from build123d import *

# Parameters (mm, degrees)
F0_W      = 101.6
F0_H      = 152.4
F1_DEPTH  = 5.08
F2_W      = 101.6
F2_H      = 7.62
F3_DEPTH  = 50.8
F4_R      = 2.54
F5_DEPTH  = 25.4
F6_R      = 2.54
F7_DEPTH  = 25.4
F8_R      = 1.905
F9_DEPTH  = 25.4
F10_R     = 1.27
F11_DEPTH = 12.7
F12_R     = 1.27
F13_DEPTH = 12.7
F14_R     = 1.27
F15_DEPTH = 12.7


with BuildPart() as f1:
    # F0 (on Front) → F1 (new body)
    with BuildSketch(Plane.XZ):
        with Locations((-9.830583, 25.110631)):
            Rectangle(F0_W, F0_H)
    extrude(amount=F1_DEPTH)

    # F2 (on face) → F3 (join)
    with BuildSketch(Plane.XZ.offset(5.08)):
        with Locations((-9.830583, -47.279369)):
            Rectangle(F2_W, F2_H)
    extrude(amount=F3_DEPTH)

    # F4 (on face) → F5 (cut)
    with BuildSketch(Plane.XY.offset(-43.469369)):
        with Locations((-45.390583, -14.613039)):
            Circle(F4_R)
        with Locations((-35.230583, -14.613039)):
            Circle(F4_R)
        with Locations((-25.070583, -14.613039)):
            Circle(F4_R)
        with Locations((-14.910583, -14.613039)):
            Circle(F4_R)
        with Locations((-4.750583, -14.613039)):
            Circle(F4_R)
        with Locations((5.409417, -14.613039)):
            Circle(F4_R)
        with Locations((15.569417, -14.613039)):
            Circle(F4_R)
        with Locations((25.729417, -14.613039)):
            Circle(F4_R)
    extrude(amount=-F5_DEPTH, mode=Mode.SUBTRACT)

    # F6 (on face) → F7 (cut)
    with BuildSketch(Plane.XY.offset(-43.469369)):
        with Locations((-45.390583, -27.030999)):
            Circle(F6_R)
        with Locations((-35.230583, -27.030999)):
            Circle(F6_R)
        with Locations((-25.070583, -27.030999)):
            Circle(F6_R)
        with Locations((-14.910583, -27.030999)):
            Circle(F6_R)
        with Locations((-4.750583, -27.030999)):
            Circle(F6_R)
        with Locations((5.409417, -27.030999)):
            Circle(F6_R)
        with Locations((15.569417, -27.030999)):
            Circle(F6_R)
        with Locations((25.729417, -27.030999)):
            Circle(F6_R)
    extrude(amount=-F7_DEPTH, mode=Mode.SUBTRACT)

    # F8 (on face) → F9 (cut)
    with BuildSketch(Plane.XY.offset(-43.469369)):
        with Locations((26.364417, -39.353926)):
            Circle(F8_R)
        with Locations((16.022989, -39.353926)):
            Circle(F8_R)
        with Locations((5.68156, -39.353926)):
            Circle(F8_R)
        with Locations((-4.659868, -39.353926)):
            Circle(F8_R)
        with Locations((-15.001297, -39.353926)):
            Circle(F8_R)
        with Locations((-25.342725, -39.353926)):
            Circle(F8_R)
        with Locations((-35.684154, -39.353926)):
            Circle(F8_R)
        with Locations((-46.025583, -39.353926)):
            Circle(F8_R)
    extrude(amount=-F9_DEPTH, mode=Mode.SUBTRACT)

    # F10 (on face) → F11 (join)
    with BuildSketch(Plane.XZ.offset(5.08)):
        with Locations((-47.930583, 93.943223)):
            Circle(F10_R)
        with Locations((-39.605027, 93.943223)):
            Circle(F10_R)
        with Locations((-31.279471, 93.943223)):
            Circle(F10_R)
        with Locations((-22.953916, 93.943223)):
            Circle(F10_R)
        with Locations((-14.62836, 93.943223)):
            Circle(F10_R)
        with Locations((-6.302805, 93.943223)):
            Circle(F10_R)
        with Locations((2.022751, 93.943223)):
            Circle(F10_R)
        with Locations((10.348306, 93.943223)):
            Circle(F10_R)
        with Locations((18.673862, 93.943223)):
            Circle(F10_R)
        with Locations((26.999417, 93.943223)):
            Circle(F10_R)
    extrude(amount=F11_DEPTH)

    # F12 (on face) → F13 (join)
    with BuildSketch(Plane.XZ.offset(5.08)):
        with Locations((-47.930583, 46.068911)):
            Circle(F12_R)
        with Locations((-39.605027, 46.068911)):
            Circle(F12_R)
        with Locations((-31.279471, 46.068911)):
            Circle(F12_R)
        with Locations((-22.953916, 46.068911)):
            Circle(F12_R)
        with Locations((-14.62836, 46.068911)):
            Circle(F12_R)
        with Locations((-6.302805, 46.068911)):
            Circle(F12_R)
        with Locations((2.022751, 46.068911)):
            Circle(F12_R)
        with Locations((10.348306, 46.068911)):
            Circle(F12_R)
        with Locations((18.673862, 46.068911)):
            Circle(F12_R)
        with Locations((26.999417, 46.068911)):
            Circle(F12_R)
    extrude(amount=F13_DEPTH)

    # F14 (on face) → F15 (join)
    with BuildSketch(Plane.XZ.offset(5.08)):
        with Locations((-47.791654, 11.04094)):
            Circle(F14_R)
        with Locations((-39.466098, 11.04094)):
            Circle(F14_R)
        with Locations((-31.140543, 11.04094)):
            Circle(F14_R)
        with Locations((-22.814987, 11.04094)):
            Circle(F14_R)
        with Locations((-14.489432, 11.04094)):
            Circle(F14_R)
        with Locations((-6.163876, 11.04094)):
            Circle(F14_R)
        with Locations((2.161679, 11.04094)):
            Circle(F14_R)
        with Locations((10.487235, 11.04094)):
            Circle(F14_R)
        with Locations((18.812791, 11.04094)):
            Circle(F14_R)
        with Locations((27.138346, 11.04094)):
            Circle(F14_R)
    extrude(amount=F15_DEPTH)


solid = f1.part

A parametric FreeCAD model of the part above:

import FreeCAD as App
import Part
import Sketcher
Q = App.Units.Quantity


def add_polygon(sketch, points):
    """Adds a closed chain of lines whose ends are joined by coincident constraints."""
    first, n = sketch.GeometryCount, len(points)
    for a, b in zip(points, points[1:] + points[:1]):
        sketch.addGeometry(Part.LineSegment(App.Vector(*a, 0), App.Vector(*b, 0)), False)
    for i in range(n):
        sketch.addConstraint(Sketcher.Constraint("Coincident", first + i, 2, first + (i + 1) % n, 1))

doc = App.newDocument("Part")
body = doc.addObject("PartDesign::Body", "Body")

# Sketch on XZ plane
sketch1 = body.newObject("Sketcher::SketchObject", "Sketch")
sketch1.AttachmentSupport = (doc.getObject("XZ_Plane"), [""])
sketch1.MapMode = "FlatFace"
add_polygon(sketch1, [(-61, 101), (-61, -51), (41, -51), (41, 101)])  # lines 0-3
sketch1.addConstraint([
    Sketcher.Constraint("Vertical", 0),
    Sketcher.Constraint("Horizontal", 1),
    Sketcher.Constraint("Vertical", 2),
    Sketcher.Constraint("Horizontal", 3),
    Sketcher.Constraint("DistanceX", 1, 1, 1, 2, Q("4 in")),
    Sketcher.Constraint("DistanceY", 0, 2, 0, 1, Q("6 in")),
    Sketcher.Constraint("DistanceY", 0, 2, -1, 1, 51.089369),
    Sketcher.Constraint("DistanceX", 0, 2, -1, 1, 60.630583),
])
pad1 = body.newObject("PartDesign::Pad", "Pad")
pad1.Profile = sketch1
pad1.Length = Q("0.2 in")

# Sketch on XZ plane
sketch2 = body.newObject("Sketcher::SketchObject", "Sketch001")
sketch2.AttachmentSupport = (doc.getObject("XZ_Plane"), [""])
sketch2.MapMode = "FlatFace"
sketch2.AttachmentOffset = App.Placement(App.Vector(0, 0, 0.2 * 25.4), App.Rotation())
add_polygon(sketch2, [(-61, -43), (-61, -51), (41, -51), (41, -43)])  # lines 0-3
sketch2.addConstraint([
    Sketcher.Constraint("Vertical", 0),
    Sketcher.Constraint("Horizontal", 1),
    Sketcher.Constraint("Vertical", 2),
    Sketcher.Constraint("Horizontal", 3),
    Sketcher.Constraint("DistanceX", 1, 1, 1, 2, Q("4 in")),
    Sketcher.Constraint("DistanceY", 0, 2, 0, 1, Q("0.3 in")),
    Sketcher.Constraint("DistanceY", 0, 2, -1, 1, 51.089369),
    Sketcher.Constraint("DistanceX", 0, 2, -1, 1, 60.630583),
])
pad2 = body.newObject("PartDesign::Pad", "Pad001")
pad2.Profile = sketch2
pad2.Length = Q("2 in")

# Sketch on XY plane
sketch3 = body.newObject("Sketcher::SketchObject", "Sketch002")
sketch3.AttachmentSupport = (doc.getObject("XY_Plane"), [""])
sketch3.MapMode = "FlatFace"
sketch3.AttachmentOffset = App.Placement(App.Vector(0, 0, -43.469369), App.Rotation())
sketch3.addGeometry([
    Part.Circle(App.Vector(-45.4, -14.6, 0), App.Vector(0, 0, 1), 2.5),  # 0
    Part.Circle(App.Vector(-35.2, -14.6, 0), App.Vector(0, 0, 1), 2.5),  # 1
    Part.Circle(App.Vector(-25.1, -14.6, 0), App.Vector(0, 0, 1), 2.5),  # 2
    Part.Circle(App.Vector(-14.9, -14.6, 0), App.Vector(0, 0, 1), 2.5),  # 3
    Part.Circle(App.Vector(-4.8, -14.6, 0), App.Vector(0, 0, 1), 2.5),  # 4
    Part.Circle(App.Vector(5.4, -14.6, 0), App.Vector(0, 0, 1), 2.5),  # 5
    Part.Circle(App.Vector(15.6, -14.6, 0), App.Vector(0, 0, 1), 2.5),  # 6
    Part.Circle(App.Vector(25.7, -14.6, 0), App.Vector(0, 0, 1), 2.5),  # 7
], False)
sketch3.addConstraint([
    Sketcher.Constraint("Equal", 0, 1),
    Sketcher.Constraint("Equal", 1, 2),
    Sketcher.Constraint("Equal", 2, 3),
    Sketcher.Constraint("Equal", 3, 4),
    Sketcher.Constraint("Equal", 4, 5),
    Sketcher.Constraint("Equal", 5, 6),
    Sketcher.Constraint("Equal", 6, 7),
    Sketcher.Constraint("Horizontal", 0, 3, 1, 3),
    Sketcher.Constraint("Horizontal", 1, 3, 2, 3),
    Sketcher.Constraint("Horizontal", 2, 3, 3, 3),
    Sketcher.Constraint("Horizontal", 3, 3, 4, 3),
    Sketcher.Constraint("Horizontal", 4, 3, 5, 3),
    Sketcher.Constraint("Horizontal", 5, 3, 6, 3),
    Sketcher.Constraint("Horizontal", 6, 3, 7, 3),
    Sketcher.Constraint("Diameter", 0, Q("0.2 in")),
    Sketcher.Constraint("DistanceX", 0, 3, 5, 3, Q("2 in")),
    Sketcher.Constraint("DistanceX", 1, 3, 6, 3, Q("2 in")),
    Sketcher.Constraint("DistanceX", 2, 3, 7, 3, Q("2 in")),
    Sketcher.Constraint("DistanceX", 0, 3, 1, 3, Q("0.4 in")),
    Sketcher.Constraint("DistanceX", 1, 3, 2, 3, Q("0.4 in")),
    Sketcher.Constraint("DistanceX", 2, 3, 3, 3, Q("0.4 in")),
    Sketcher.Constraint("DistanceX", 3, 3, 4, 3, Q("0.4 in")),
    Sketcher.Constraint("DistanceY", 0, 3, -1, 1, 14.613039),
    Sketcher.Constraint("DistanceX", 0, 3, -1, 1, 45.390583),
])
pocket1 = body.newObject("PartDesign::Pocket", "Pocket")
pocket1.Profile = sketch3
pocket1.Length = Q("1 in")

# Sketch on XY plane
sketch4 = body.newObject("Sketcher::SketchObject", "Sketch003")
sketch4.AttachmentSupport = (doc.getObject("XY_Plane"), [""])
sketch4.MapMode = "FlatFace"
sketch4.AttachmentOffset = App.Placement(App.Vector(0, 0, -43.469369), App.Rotation())
sketch4.addGeometry([
    Part.Circle(App.Vector(-45.4, -27, 0), App.Vector(0, 0, 1), 2.5),  # 0
    Part.Circle(App.Vector(-35.2, -27, 0), App.Vector(0, 0, 1), 2.5),  # 1
    Part.Circle(App.Vector(-25.1, -27, 0), App.Vector(0, 0, 1), 2.5),  # 2
    Part.Circle(App.Vector(-14.9, -27, 0), App.Vector(0, 0, 1), 2.5),  # 3
    Part.Circle(App.Vector(-4.8, -27, 0), App.Vector(0, 0, 1), 2.5),  # 4
    Part.Circle(App.Vector(5.4, -27, 0), App.Vector(0, 0, 1), 2.5),  # 5
    Part.Circle(App.Vector(15.6, -27, 0), App.Vector(0, 0, 1), 2.5),  # 6
    Part.Circle(App.Vector(25.7, -27, 0), App.Vector(0, 0, 1), 2.5),  # 7
], False)
sketch4.addConstraint([
    Sketcher.Constraint("Equal", 0, 1),
    Sketcher.Constraint("Equal", 1, 2),
    Sketcher.Constraint("Equal", 2, 3),
    Sketcher.Constraint("Equal", 3, 4),
    Sketcher.Constraint("Equal", 4, 5),
    Sketcher.Constraint("Equal", 5, 6),
    Sketcher.Constraint("Equal", 6, 7),
    Sketcher.Constraint("Horizontal", 0, 3, 1, 3),
    Sketcher.Constraint("Horizontal", 1, 3, 2, 3),
    Sketcher.Constraint("Horizontal", 2, 3, 3, 3),
    Sketcher.Constraint("Horizontal", 3, 3, 4, 3),
    Sketcher.Constraint("Horizontal", 4, 3, 5, 3),
    Sketcher.Constraint("Horizontal", 5, 3, 6, 3),
    Sketcher.Constraint("Horizontal", 6, 3, 7, 3),
    Sketcher.Constraint("Diameter", 0, Q("0.2 in")),
    Sketcher.Constraint("DistanceX", 0, 3, 5, 3, Q("2 in")),
    Sketcher.Constraint("DistanceX", 1, 3, 6, 3, Q("2 in")),
    Sketcher.Constraint("DistanceX", 2, 3, 7, 3, Q("2 in")),
    Sketcher.Constraint("DistanceX", 0, 3, 1, 3, Q("0.4 in")),
    Sketcher.Constraint("DistanceX", 1, 3, 2, 3, Q("0.4 in")),
    Sketcher.Constraint("DistanceX", 2, 3, 3, 3, Q("0.4 in")),
    Sketcher.Constraint("DistanceX", 3, 3, 4, 3, Q("0.4 in")),
    Sketcher.Constraint("DistanceY", 0, 3, -1, 1, 27.030999),
    Sketcher.Constraint("DistanceX", 0, 3, -1, 1, 45.390583),
])
pocket2 = body.newObject("PartDesign::Pocket", "Pocket001")
pocket2.Profile = sketch4
pocket2.Length = Q("1 in")

# Sketch on XY plane
sketch5 = body.newObject("Sketcher::SketchObject", "Sketch004")
sketch5.AttachmentSupport = (doc.getObject("XY_Plane"), [""])
sketch5.MapMode = "FlatFace"
sketch5.AttachmentOffset = App.Placement(App.Vector(0, 0, -43.469369), App.Rotation())
sketch5.addGeometry([
    Part.Circle(App.Vector(26.4, -39.4, 0), App.Vector(0, 0, 1), 1.9),  # 0
    Part.Circle(App.Vector(16, -39.4, 0), App.Vector(0, 0, 1), 1.9),  # 1
    Part.Circle(App.Vector(5.7, -39.4, 0), App.Vector(0, 0, 1), 1.9),  # 2
    Part.Circle(App.Vector(-4.7, -39.4, 0), App.Vector(0, 0, 1), 1.9),  # 3
    Part.Circle(App.Vector(-15, -39.4, 0), App.Vector(0, 0, 1), 1.9),  # 4
    Part.Circle(App.Vector(-25.3, -39.4, 0), App.Vector(0, 0, 1), 1.9),  # 5
    Part.Circle(App.Vector(-35.7, -39.4, 0), App.Vector(0, 0, 1), 1.9),  # 6
    Part.Circle(App.Vector(-46, -39.4, 0), App.Vector(0, 0, 1), 1.9),  # 7
], False)
sketch5.addConstraint([
    Sketcher.Constraint("Equal", 0, 1),
    Sketcher.Constraint("Equal", 1, 2),
    Sketcher.Constraint("Equal", 2, 3),
    Sketcher.Constraint("Equal", 3, 4),
    Sketcher.Constraint("Equal", 4, 5),
    Sketcher.Constraint("Equal", 5, 6),
    Sketcher.Constraint("Equal", 6, 7),
    Sketcher.Constraint("Horizontal", 0, 3, 1, 3),
    Sketcher.Constraint("Horizontal", 1, 3, 2, 3),
    Sketcher.Constraint("Horizontal", 2, 3, 3, 3),
    Sketcher.Constraint("Horizontal", 3, 3, 4, 3),
    Sketcher.Constraint("Horizontal", 4, 3, 5, 3),
    Sketcher.Constraint("Horizontal", 5, 3, 6, 3),
    Sketcher.Constraint("Horizontal", 6, 3, 7, 3),
    Sketcher.Constraint("Diameter", 0, Q("0.15 in")),
    Sketcher.Constraint("DistanceX", -1, 1, 1, 3, 16.022989),
    Sketcher.Constraint("DistanceX", -1, 1, 2, 3, 5.68156),
    Sketcher.Constraint("DistanceX", 3, 3, -1, 1, 4.659868),
    Sketcher.Constraint("DistanceX", 4, 3, 3, 3, 10.341429),
    Sketcher.Constraint("DistanceX", 5, 3, 4, 3, 10.341428),
    Sketcher.Constraint("DistanceX", 6, 3, 5, 3, 10.341429),
    Sketcher.Constraint("DistanceX", 7, 3, 6, 3, 10.341429),
    Sketcher.Constraint("DistanceX", -1, 1, 0, 3, 26.364417),
    Sketcher.Constraint("DistanceY", 0, 3, -1, 1, 39.353926),
])
pocket3 = body.newObject("PartDesign::Pocket", "Pocket002")
pocket3.Profile = sketch5
pocket3.Length = Q("1 in")

# Sketch on XZ plane
sketch6 = body.newObject("Sketcher::SketchObject", "Sketch005")
sketch6.AttachmentSupport = (doc.getObject("XZ_Plane"), [""])
sketch6.MapMode = "FlatFace"
sketch6.AttachmentOffset = App.Placement(App.Vector(0, 0, 0.2 * 25.4), App.Rotation())
sketch6.addGeometry([
    Part.Circle(App.Vector(-47.9, 93.9, 0), App.Vector(0, 0, 1), 1.3),  # 0
    Part.Circle(App.Vector(-39.6, 93.9, 0), App.Vector(0, 0, 1), 1.3),  # 1
    Part.Circle(App.Vector(-31.3, 93.9, 0), App.Vector(0, 0, 1), 1.3),  # 2
    Part.Circle(App.Vector(-23, 93.9, 0), App.Vector(0, 0, 1), 1.3),  # 3
    Part.Circle(App.Vector(-14.6, 93.9, 0), App.Vector(0, 0, 1), 1.3),  # 4
    Part.Circle(App.Vector(-6.3, 93.9, 0), App.Vector(0, 0, 1), 1.3),  # 5
    Part.Circle(App.Vector(2, 93.9, 0), App.Vector(0, 0, 1), 1.3),  # 6
    Part.Circle(App.Vector(10.3, 93.9, 0), App.Vector(0, 0, 1), 1.3),  # 7
    Part.Circle(App.Vector(18.7, 93.9, 0), App.Vector(0, 0, 1), 1.3),  # 8
    Part.Circle(App.Vector(27, 93.9, 0), App.Vector(0, 0, 1), 1.3),  # 9
], False)
sketch6.addConstraint([
    Sketcher.Constraint("Equal", 0, 1),
    Sketcher.Constraint("Equal", 1, 2),
    Sketcher.Constraint("Equal", 2, 3),
    Sketcher.Constraint("Equal", 3, 4),
    Sketcher.Constraint("Equal", 4, 5),
    Sketcher.Constraint("Equal", 5, 6),
    Sketcher.Constraint("Equal", 6, 7),
    Sketcher.Constraint("Equal", 7, 8),
    Sketcher.Constraint("Equal", 8, 9),
    Sketcher.Constraint("Horizontal", 0, 3, 1, 3),
    Sketcher.Constraint("Horizontal", 1, 3, 2, 3),
    Sketcher.Constraint("Horizontal", 2, 3, 3, 3),
    Sketcher.Constraint("Horizontal", 3, 3, 4, 3),
    Sketcher.Constraint("Horizontal", 4, 3, 5, 3),
    Sketcher.Constraint("Horizontal", 5, 3, 6, 3),
    Sketcher.Constraint("Horizontal", 6, 3, 7, 3),
    Sketcher.Constraint("Horizontal", 7, 3, 8, 3),
    Sketcher.Constraint("Horizontal", 8, 3, 9, 3),
    Sketcher.Constraint("Diameter", 0, Q("0.1 in")),
    Sketcher.Constraint("DistanceX", 2, 3, -1, 1, 31.279471),
    Sketcher.Constraint("DistanceX", 4, 3, -1, 1, 14.62836),
    Sketcher.Constraint("DistanceX", -1, 1, 6, 3, 2.022751),
    Sketcher.Constraint("DistanceX", -1, 1, 8, 3, 18.673862),
    Sketcher.Constraint("DistanceX", 0, 3, 2, 3, 16.651112),
    Sketcher.Constraint("DistanceX", 1, 3, 3, 3, 16.651111),
    Sketcher.Constraint("DistanceX", 3, 3, 5, 3, 16.651111),
    Sketcher.Constraint("DistanceX", 5, 3, 7, 3, 16.651111),
    Sketcher.Constraint("DistanceX", 7, 3, 9, 3, 16.651111),
    Sketcher.Constraint("DistanceY", -1, 1, 0, 3, 93.943223),
    Sketcher.Constraint("DistanceX", 1, 3, -1, 1, 39.605027),
])
pad3 = body.newObject("PartDesign::Pad", "Pad002")
pad3.Profile = sketch6
pad3.Length = Q("0.5 in")

# Sketch on XZ plane
sketch7 = body.newObject("Sketcher::SketchObject", "Sketch006")
sketch7.AttachmentSupport = (doc.getObject("XZ_Plane"), [""])
sketch7.MapMode = "FlatFace"
sketch7.AttachmentOffset = App.Placement(App.Vector(0, 0, 0.2 * 25.4), App.Rotation())
sketch7.addGeometry([
    Part.Circle(App.Vector(-47.9, 46.1, 0), App.Vector(0, 0, 1), 1.3),  # 0
    Part.Circle(App.Vector(-39.6, 46.1, 0), App.Vector(0, 0, 1), 1.3),  # 1
    Part.Circle(App.Vector(-31.3, 46.1, 0), App.Vector(0, 0, 1), 1.3),  # 2
    Part.Circle(App.Vector(-23, 46.1, 0), App.Vector(0, 0, 1), 1.3),  # 3
    Part.Circle(App.Vector(-14.6, 46.1, 0), App.Vector(0, 0, 1), 1.3),  # 4
    Part.Circle(App.Vector(-6.3, 46.1, 0), App.Vector(0, 0, 1), 1.3),  # 5
    Part.Circle(App.Vector(2, 46.1, 0), App.Vector(0, 0, 1), 1.3),  # 6
    Part.Circle(App.Vector(10.3, 46.1, 0), App.Vector(0, 0, 1), 1.3),  # 7
    Part.Circle(App.Vector(18.7, 46.1, 0), App.Vector(0, 0, 1), 1.3),  # 8
    Part.Circle(App.Vector(27, 46.1, 0), App.Vector(0, 0, 1), 1.3),  # 9
], False)
sketch7.addConstraint([
    Sketcher.Constraint("Equal", 0, 1),
    Sketcher.Constraint("Equal", 1, 2),
    Sketcher.Constraint("Equal", 2, 3),
    Sketcher.Constraint("Equal", 3, 4),
    Sketcher.Constraint("Equal", 4, 5),
    Sketcher.Constraint("Equal", 5, 6),
    Sketcher.Constraint("Equal", 6, 7),
    Sketcher.Constraint("Equal", 7, 8),
    Sketcher.Constraint("Equal", 8, 9),
    Sketcher.Constraint("Horizontal", 0, 3, 1, 3),
    Sketcher.Constraint("Horizontal", 1, 3, 2, 3),
    Sketcher.Constraint("Horizontal", 2, 3, 3, 3),
    Sketcher.Constraint("Horizontal", 3, 3, 4, 3),
    Sketcher.Constraint("Horizontal", 4, 3, 5, 3),
    Sketcher.Constraint("Horizontal", 5, 3, 6, 3),
    Sketcher.Constraint("Horizontal", 6, 3, 7, 3),
    Sketcher.Constraint("Horizontal", 7, 3, 8, 3),
    Sketcher.Constraint("Horizontal", 8, 3, 9, 3),
    Sketcher.Constraint("Diameter", 0, Q("0.1 in")),
    Sketcher.Constraint("DistanceY", -1, 1, 0, 3, 46.068911),
    Sketcher.Constraint("DistanceX", 2, 3, -1, 1, 31.279471),
    Sketcher.Constraint("DistanceX", 4, 3, -1, 1, 14.62836),
    Sketcher.Constraint("DistanceX", -1, 1, 6, 3, 2.022751),
    Sketcher.Constraint("DistanceX", -1, 1, 8, 3, 18.673862),
    Sketcher.Constraint("DistanceX", 0, 3, 2, 3, 16.651112),
    Sketcher.Constraint("DistanceX", 1, 3, 3, 3, 16.651111),
    Sketcher.Constraint("DistanceX", 3, 3, 5, 3, 16.651111),
    Sketcher.Constraint("DistanceX", 5, 3, 7, 3, 16.651111),
    Sketcher.Constraint("DistanceX", 7, 3, 9, 3, 16.651111),
    Sketcher.Constraint("DistanceX", 1, 3, -1, 1, 39.605027),
])
pad4 = body.newObject("PartDesign::Pad", "Pad003")
pad4.Profile = sketch7
pad4.Length = Q("0.5 in")

# Sketch on XZ plane
sketch8 = body.newObject("Sketcher::SketchObject", "Sketch007")
sketch8.AttachmentSupport = (doc.getObject("XZ_Plane"), [""])
sketch8.MapMode = "FlatFace"
sketch8.AttachmentOffset = App.Placement(App.Vector(0, 0, 0.2 * 25.4), App.Rotation())
sketch8.addGeometry([
    Part.Circle(App.Vector(-47.8, 11, 0), App.Vector(0, 0, 1), 1.3),  # 0
    Part.Circle(App.Vector(-39.5, 11, 0), App.Vector(0, 0, 1), 1.3),  # 1
    Part.Circle(App.Vector(-31.1, 11, 0), App.Vector(0, 0, 1), 1.3),  # 2
    Part.Circle(App.Vector(-22.8, 11, 0), App.Vector(0, 0, 1), 1.3),  # 3
    Part.Circle(App.Vector(-14.5, 11, 0), App.Vector(0, 0, 1), 1.3),  # 4
    Part.Circle(App.Vector(-6.2, 11, 0), App.Vector(0, 0, 1), 1.3),  # 5
    Part.Circle(App.Vector(2.2, 11, 0), App.Vector(0, 0, 1), 1.3),  # 6
    Part.Circle(App.Vector(10.5, 11, 0), App.Vector(0, 0, 1), 1.3),  # 7
    Part.Circle(App.Vector(18.8, 11, 0), App.Vector(0, 0, 1), 1.3),  # 8
    Part.Circle(App.Vector(27.1, 11, 0), App.Vector(0, 0, 1), 1.3),  # 9
], False)
sketch8.addConstraint([
    Sketcher.Constraint("Equal", 0, 1),
    Sketcher.Constraint("Equal", 1, 2),
    Sketcher.Constraint("Equal", 2, 3),
    Sketcher.Constraint("Equal", 3, 4),
    Sketcher.Constraint("Equal", 4, 5),
    Sketcher.Constraint("Equal", 5, 6),
    Sketcher.Constraint("Equal", 6, 7),
    Sketcher.Constraint("Equal", 7, 8),
    Sketcher.Constraint("Equal", 8, 9),
    Sketcher.Constraint("Horizontal", 0, 3, 1, 3),
    Sketcher.Constraint("Horizontal", 1, 3, 2, 3),
    Sketcher.Constraint("Horizontal", 2, 3, 3, 3),
    Sketcher.Constraint("Horizontal", 3, 3, 4, 3),
    Sketcher.Constraint("Horizontal", 4, 3, 5, 3),
    Sketcher.Constraint("Horizontal", 5, 3, 6, 3),
    Sketcher.Constraint("Horizontal", 6, 3, 7, 3),
    Sketcher.Constraint("Horizontal", 7, 3, 8, 3),
    Sketcher.Constraint("Horizontal", 8, 3, 9, 3),
    Sketcher.Constraint("Diameter", 0, Q("0.1 in")),
    Sketcher.Constraint("DistanceX", 1, 3, -1, 1, 39.466098),
    Sketcher.Constraint("DistanceY", -1, 1, 0, 3, 11.04094),
    Sketcher.Constraint("DistanceX", -1, 1, 6, 3, 2.161679),
    Sketcher.Constraint("DistanceX", -1, 1, 8, 3, 18.812791),
    Sketcher.Constraint("DistanceX", 0, 3, 2, 3, 16.651111),
    Sketcher.Constraint("DistanceX", 1, 3, 3, 3, 16.651111),
    Sketcher.Constraint("DistanceX", 2, 3, 4, 3, 16.651111),
    Sketcher.Constraint("DistanceX", 3, 3, 5, 3, 16.651111),
    Sketcher.Constraint("DistanceX", 4, 3, 6, 3, 16.651111),
    Sketcher.Constraint("DistanceX", 5, 3, 7, 3, 16.651111),
    Sketcher.Constraint("DistanceX", 7, 3, 9, 3, 16.651111),
])
pad5 = body.newObject("PartDesign::Pad", "Pad004")
pad5.Profile = sketch8
pad5.Length = Q("0.5 in")

doc.recompute()
